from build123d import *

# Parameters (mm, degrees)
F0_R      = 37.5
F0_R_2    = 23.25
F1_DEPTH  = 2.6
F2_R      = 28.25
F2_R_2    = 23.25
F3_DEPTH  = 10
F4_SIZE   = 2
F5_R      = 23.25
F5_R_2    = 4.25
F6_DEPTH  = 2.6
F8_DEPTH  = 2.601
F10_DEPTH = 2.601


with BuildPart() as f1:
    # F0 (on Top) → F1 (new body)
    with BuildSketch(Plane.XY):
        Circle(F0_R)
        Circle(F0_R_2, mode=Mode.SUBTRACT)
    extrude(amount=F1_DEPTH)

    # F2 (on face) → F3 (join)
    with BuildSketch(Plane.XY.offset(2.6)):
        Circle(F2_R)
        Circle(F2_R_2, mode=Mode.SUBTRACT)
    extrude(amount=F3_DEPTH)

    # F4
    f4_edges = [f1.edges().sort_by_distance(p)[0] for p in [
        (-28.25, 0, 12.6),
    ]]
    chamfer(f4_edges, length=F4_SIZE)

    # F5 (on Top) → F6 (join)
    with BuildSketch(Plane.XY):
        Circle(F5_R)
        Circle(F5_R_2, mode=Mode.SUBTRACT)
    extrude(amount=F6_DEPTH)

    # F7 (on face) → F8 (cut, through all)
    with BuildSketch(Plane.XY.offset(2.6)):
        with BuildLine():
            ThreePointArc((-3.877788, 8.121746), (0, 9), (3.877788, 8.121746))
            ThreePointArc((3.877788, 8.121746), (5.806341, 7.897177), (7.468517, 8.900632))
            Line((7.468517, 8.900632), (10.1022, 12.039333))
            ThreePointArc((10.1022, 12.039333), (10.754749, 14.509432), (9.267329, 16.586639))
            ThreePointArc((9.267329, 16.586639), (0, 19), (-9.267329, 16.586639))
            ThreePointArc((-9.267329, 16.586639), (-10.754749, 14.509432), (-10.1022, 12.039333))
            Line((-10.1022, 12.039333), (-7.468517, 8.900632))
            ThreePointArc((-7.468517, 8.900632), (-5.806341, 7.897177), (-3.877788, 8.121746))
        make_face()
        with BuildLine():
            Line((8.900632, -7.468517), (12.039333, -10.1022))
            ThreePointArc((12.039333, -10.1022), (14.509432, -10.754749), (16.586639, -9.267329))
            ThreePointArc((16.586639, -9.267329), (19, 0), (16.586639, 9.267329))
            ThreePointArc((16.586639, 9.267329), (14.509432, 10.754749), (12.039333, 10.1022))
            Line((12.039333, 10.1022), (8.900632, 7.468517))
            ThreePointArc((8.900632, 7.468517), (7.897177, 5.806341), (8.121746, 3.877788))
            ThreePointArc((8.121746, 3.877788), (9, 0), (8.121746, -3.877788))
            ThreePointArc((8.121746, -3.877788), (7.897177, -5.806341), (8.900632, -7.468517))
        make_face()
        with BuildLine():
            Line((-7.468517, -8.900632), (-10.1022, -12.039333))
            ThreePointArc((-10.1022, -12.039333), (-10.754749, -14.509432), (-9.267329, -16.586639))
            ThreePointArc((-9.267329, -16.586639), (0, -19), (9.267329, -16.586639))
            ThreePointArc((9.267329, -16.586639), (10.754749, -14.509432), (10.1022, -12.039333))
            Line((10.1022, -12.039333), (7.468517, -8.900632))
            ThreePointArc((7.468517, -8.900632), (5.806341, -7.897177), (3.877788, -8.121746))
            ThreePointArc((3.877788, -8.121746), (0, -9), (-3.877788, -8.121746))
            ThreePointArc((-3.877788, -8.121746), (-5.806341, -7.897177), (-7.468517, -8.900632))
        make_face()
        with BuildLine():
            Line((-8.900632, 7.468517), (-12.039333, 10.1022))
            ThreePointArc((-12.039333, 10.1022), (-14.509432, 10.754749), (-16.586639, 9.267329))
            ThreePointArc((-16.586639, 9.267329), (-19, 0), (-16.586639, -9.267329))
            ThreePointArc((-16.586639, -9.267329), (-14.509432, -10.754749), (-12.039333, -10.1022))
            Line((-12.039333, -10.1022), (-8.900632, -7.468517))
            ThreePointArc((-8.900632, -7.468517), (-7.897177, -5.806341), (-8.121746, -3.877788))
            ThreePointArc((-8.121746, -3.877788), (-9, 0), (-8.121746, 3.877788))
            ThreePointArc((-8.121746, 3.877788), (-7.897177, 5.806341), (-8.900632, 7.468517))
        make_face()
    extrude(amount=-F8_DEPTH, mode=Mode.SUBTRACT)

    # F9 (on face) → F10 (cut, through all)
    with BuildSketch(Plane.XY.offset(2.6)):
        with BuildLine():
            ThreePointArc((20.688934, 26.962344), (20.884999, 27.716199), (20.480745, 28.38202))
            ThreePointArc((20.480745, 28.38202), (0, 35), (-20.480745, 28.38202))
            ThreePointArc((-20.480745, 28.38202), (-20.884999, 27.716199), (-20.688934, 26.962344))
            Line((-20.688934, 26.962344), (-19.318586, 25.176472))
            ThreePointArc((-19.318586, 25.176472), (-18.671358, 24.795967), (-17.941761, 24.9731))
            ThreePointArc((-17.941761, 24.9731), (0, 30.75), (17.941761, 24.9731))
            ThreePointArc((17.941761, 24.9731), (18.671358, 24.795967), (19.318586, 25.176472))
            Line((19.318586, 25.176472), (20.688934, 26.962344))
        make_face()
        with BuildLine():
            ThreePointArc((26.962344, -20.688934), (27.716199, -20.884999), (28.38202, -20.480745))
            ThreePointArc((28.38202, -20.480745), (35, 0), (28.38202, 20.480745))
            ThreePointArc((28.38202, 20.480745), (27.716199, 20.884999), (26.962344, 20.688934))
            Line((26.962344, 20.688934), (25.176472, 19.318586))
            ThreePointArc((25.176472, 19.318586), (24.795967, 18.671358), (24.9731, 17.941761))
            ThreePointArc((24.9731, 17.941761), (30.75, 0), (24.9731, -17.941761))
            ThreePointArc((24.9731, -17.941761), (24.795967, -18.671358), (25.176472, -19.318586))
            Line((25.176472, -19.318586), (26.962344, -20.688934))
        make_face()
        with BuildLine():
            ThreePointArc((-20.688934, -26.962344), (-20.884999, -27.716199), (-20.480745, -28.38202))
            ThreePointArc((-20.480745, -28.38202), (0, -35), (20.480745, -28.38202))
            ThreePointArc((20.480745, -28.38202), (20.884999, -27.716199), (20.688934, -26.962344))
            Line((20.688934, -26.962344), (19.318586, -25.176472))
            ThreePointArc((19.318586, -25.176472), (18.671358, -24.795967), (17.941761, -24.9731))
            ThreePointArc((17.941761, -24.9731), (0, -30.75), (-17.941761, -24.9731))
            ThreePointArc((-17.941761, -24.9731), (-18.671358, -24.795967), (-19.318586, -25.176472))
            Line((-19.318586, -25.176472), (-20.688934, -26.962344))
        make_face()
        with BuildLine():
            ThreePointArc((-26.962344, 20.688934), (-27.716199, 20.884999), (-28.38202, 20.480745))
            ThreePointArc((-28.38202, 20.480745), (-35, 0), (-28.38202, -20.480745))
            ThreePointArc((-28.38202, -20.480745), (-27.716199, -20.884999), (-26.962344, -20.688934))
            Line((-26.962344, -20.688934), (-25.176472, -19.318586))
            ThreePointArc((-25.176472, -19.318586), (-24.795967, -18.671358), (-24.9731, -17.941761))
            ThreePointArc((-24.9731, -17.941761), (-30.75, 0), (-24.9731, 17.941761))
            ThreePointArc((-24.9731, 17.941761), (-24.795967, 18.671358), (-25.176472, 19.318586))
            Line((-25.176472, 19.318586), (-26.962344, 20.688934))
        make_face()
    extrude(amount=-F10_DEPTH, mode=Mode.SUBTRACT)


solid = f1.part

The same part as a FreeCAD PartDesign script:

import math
import FreeCAD as App
import Part
import Sketcher
Q = App.Units.Quantity


def edges_at(feature, points):
    """Names of the edges that pass closest to the given points."""
    edges = feature.Shape.Edges
    near = lambda p: min(range(len(edges)), key=lambda i: edges[i].distToShape(Part.Vertex(*p))[0])
    return sorted({f"Edge{near(p) + 1}" for p in points})

doc = App.newDocument("Part")
body = doc.addObject("PartDesign::Body", "Body")

# Sketch on XY plane
sketch1 = body.newObject("Sketcher::SketchObject", "Sketch")
sketch1.AttachmentSupport = (doc.getObject("XY_Plane"), [""])
sketch1.MapMode = "FlatFace"
sketch1.addGeometry([
    Part.Circle(App.Vector(0, 0, 0), App.Vector(0, 0, 1), 37.5),
    Part.Circle(App.Vector(0, 0, 0), App.Vector(0, 0, 1), 23.25),
], False)
sketch1.addConstraint([
    Sketcher.Constraint("Coincident", 0, 3, -1, 1),
    Sketcher.Constraint("Coincident", 1, 3, -1, 1),
    Sketcher.Constraint("Diameter", 0, Q("75 mm")),
    Sketcher.Constraint("Diameter", 1, Q("46.5 mm")),
])
pad1 = body.newObject("PartDesign::Pad", "Pad")
pad1.Profile = sketch1
pad1.Length = 2.6

# Sketch on XY plane
sketch2 = body.newObject("Sketcher::SketchObject", "Sketch001")
sketch2.AttachmentSupport = (doc.getObject("XY_Plane"), [""])
sketch2.MapMode = "FlatFace"
sketch2.AttachmentOffset = App.Placement(App.Vector(0, 0, 2.6), App.Rotation())
sketch2.addGeometry([
    Part.Circle(App.Vector(0, 0, 0), App.Vector(0, 0, 1), 28.25),
    Part.Circle(App.Vector(0, 0, 0), App.Vector(0, 0, 1), 23.25),
], False)
sketch2.addConstraint([
    Sketcher.Constraint("Coincident", 0, 3, -1, 1),
    Sketcher.Constraint("Coincident", 1, 3, -1, 1),
    Sketcher.Constraint("Diameter", 0, Q("56.5 mm")),
    Sketcher.Constraint("Diameter", 1, Q("46.5 mm")),
])
pad2 = body.newObject("PartDesign::Pad", "Pad001")
pad2.Profile = sketch2
pad2.Length = 10
doc.recompute()

chamfer = body.newObject("PartDesign::Chamfer", "Chamfer")
chamfer.Base = (pad2, edges_at(pad2, [(-28.25, 0, 12.6)]))
chamfer.Size = 2

# Sketch on XY plane
sketch3 = body.newObject("Sketcher::SketchObject", "Sketch002")
sketch3.AttachmentSupport = (doc.getObject("XY_Plane"), [""])
sketch3.MapMode = "FlatFace"
sketch3.addGeometry([
    Part.Circle(App.Vector(0, 0, 0), App.Vector(0, 0, 1), 23.25),
    Part.Circle(App.Vector(0, 0, 0), App.Vector(0, 0, 1), 4.25),
], False)
sketch3.addConstraint([
    Sketcher.Constraint("Coincident", 0, 3, -1, 1),
    Sketcher.Constraint("Coincident", 1, 3, -1, 1),
    Sketcher.Constraint("Diameter", 0, Q("46.5 mm")),
    Sketcher.Constraint("Diameter", 1, Q("8.5 mm")),
])
pad3 = body.newObject("PartDesign::Pad", "Pad002")
pad3.Profile = sketch3
pad3.Length = 2.6

# Sketch on XY plane
sketch4 = body.newObject("Sketcher::SketchObject", "Sketch003")
sketch4.AttachmentSupport = (doc.getObject("XY_Plane"), [""])
sketch4.MapMode = "FlatFace"
sketch4.AttachmentOffset = App.Placement(App.Vector(0, 0, 2.6), App.Rotation())
sketch4.addGeometry([
    Part.ArcOfCircle(Part.Circle(App.Vector(0, 0.000001, 0), App.Vector(0, 0, 1), 8.999999), math.radians(64.477507), math.radians(115.522493)),  # 0
    Part.ArcOfCircle(Part.Circle(App.Vector(5.170383, 10.828997, 0), App.Vector(0, 0, 1), 3.000001), math.radians(-115.52246), math.radians(-40.000023)),  # 1
    Part.LineSegment(App.Vector(7.468517, 8.900632, 0), App.Vector(10.1022, 12.039333, 0)),  # 2
    Part.ArcOfCircle(Part.Circle(App.Vector(7.804069, 13.967696, 0), App.Vector(0, 0, 1), 2.999999), math.radians(-40.000029), math.radians(60.806957)),  # 3
    Part.ArcOfCircle(Part.Circle(App.Vector(0, 0.000004, 0), App.Vector(0, 0, 1), 18.999996), math.radians(60.806918), math.radians(119.193082)),  # 4
    Part.ArcOfCircle(Part.Circle(App.Vector(-7.804069, 13.967696, 0), App.Vector(0, 0, 1), 2.999999), math.radians(119.193043), math.radians(220.000029)),  # 5
    Part.LineSegment(App.Vector(-10.1022, 12.039333, 0), App.Vector(-7.468517, 8.900632, 0)),  # 6
    Part.ArcOfCircle(Part.Circle(App.Vector(-5.170383, 10.828997, 0), App.Vector(0, 0, 1), 3.000001), math.radians(-139.999977), math.radians(-64.47754)),  # 7
    Part.LineSegment(App.Vector(8.900632, -7.468517, 0), App.Vector(12.039333, -10.1022, 0)),  # 8
    Part.ArcOfCircle(Part.Circle(App.Vector(13.967696, -7.804069, 0), App.Vector(0, 0, 1), 2.999999), math.radians(-130.000029), math.radians(-29.193043)),  # 9
    Part.ArcOfCircle(Part.Circle(App.Vector(0.000004, 0, 0), App.Vector(0, 0, 1), 18.999996), math.radians(-29.193082), math.radians(29.193082)),  # 10
    Part.ArcOfCircle(Part.Circle(App.Vector(13.967696, 7.804069, 0), App.Vector(0, 0, 1), 2.999999), math.radians(29.193043), math.radians(130.000029)),  # 11
    Part.LineSegment(App.Vector(12.039333, 10.1022, 0), App.Vector(8.900632, 7.468517, 0)),  # 12
    Part.ArcOfCircle(Part.Circle(App.Vector(10.828997, 5.170383, 0), App.Vector(0, 0, 1), 3.000001), math.radians(130.000023), math.radians(205.52246)),  # 13
    Part.ArcOfCircle(Part.Circle(App.Vector(0.000001, 0, 0), App.Vector(0, 0, 1), 8.999999), math.radians(-25.522493), math.radians(25.522493)),  # 14
    Part.ArcOfCircle(Part.Circle(App.Vector(10.828997, -5.170383, 0), App.Vector(0, 0, 1), 3.000001), math.radians(154.47754), math.radians(229.999977)),  # 15
    Part.LineSegment(App.Vector(-7.468517, -8.900632, 0), App.Vector(-10.1022, -12.039333, 0)),  # 16
    Part.ArcOfCircle(Part.Circle(App.Vector(-7.804069, -13.967696, 0), App.Vector(0, 0, 1), 2.999999), math.radians(139.999971), math.radians(240.806957)),  # 17
    Part.ArcOfCircle(Part.Circle(App.Vector(0, -0.000004, 0), App.Vector(0, 0, 1), 18.999996), math.radians(-119.193082), math.radians(-60.806918)),  # 18
    Part.ArcOfCircle(Part.Circle(App.Vector(7.804069, -13.967696, 0), App.Vector(0, 0, 1), 2.999999), math.radians(-60.806957), math.radians(40.000029)),  # 19
    Part.LineSegment(App.Vector(10.1022, -12.039333, 0), App.Vector(7.468517, -8.900632, 0)),  # 20
    Part.ArcOfCircle(Part.Circle(App.Vector(5.170383, -10.828997, 0), App.Vector(0, 0, 1), 3.000001), math.radians(40.000023), math.radians(115.52246)),  # 21
    Part.ArcOfCircle(Part.Circle(App.Vector(0, -0.000001, 0), App.Vector(0, 0, 1), 8.999999), math.radians(-115.522493), math.radians(-64.477507)),  # 22
    Part.ArcOfCircle(Part.Circle(App.Vector(-5.170383, -10.828997, 0), App.Vector(0, 0, 1), 3.000001), math.radians(64.47754), math.radians(139.999977)),  # 23
    Part.LineSegment(App.Vector(-8.900632, 7.468517, 0), App.Vector(-12.039333, 10.1022, 0)),  # 24
    Part.ArcOfCircle(Part.Circle(App.Vector(-13.967696, 7.804069, 0), App.Vector(0, 0, 1), 2.999999), math.radians(49.999971), math.radians(150.806957)),  # 25
    Part.ArcOfCircle(Part.Circle(App.Vector(-0.000004, 0, 0), App.Vector(0, 0, 1), 18.999996), math.radians(150.806918), math.radians(209.193082)),  # 26
    Part.ArcOfCircle(Part.Circle(App.Vector(-13.967696, -7.804069, 0), App.Vector(0, 0, 1), 2.999999), math.radians(-150.806957), math.radians(-49.999971)),  # 27
    Part.LineSegment(App.Vector(-12.039333, -10.1022, 0), App.Vector(-8.900632, -7.468517, 0)),  # 28
    Part.ArcOfCircle(Part.Circle(App.Vector(-10.828997, -5.170383, 0), App.Vector(0, 0, 1), 3.000001), math.radians(-49.999977), math.radians(25.52246)),  # 29
    Part.ArcOfCircle(Part.Circle(App.Vector(-0.000001, 0, 0), App.Vector(0, 0, 1), 8.999999), math.radians(154.477507), math.radians(205.522493)),  # 30
    Part.ArcOfCircle(Part.Circle(App.Vector(-10.828997, 5.170383, 0), App.Vector(0, 0, 1), 3.000001), math.radians(-25.52246), math.radians(49.999977)),  # 31
], False)
sketch4.addConstraint([
    Sketcher.Constraint("Tangent", 0, 1, 1, 1),
    Sketcher.Constraint("Tangent", 1, 2, 2, 1),
    Sketcher.Constraint("Tangent", 2, 2, 3, 1),
    Sketcher.Constraint("Tangent", 3, 2, 4, 1),
    Sketcher.Constraint("Tangent", 4, 2, 5, 1),
    Sketcher.Constraint("Tangent", 5, 2, 6, 1),
    Sketcher.Constraint("Tangent", 6, 2, 7, 1),
    Sketcher.Constraint("Tangent", 7, 2, 0, 2),
    Sketcher.Constraint("Tangent", 8, 2, 9, 1),
    Sketcher.Constraint("Tangent", 9, 2, 10, 1),
    Sketcher.Constraint("Tangent", 10, 2, 11, 1),
    Sketcher.Constraint("Tangent", 11, 2, 12, 1),
    Sketcher.Constraint("Tangent", 12, 2, 13, 1),
    Sketcher.Constraint("Tangent", 13, 2, 14, 2),
    Sketcher.Constraint("Tangent", 14, 1, 15, 1),
    Sketcher.Constraint("Tangent", 15, 2, 8, 1),
    Sketcher.Constraint("Tangent", 16, 2, 17, 1),
    Sketcher.Constraint("Tangent", 17, 2, 18, 1),
    Sketcher.Constraint("Tangent", 18, 2, 19, 1),
    Sketcher.Constraint("Tangent", 19, 2, 20, 1),
    Sketcher.Constraint("Tangent", 20, 2, 21, 1),
    Sketcher.Constraint("Tangent", 21, 2, 22, 2),
    Sketcher.Constraint("Tangent", 22, 1, 23, 1),
    Sketcher.Constraint("Tangent", 23, 2, 16, 1),
    Sketcher.Constraint("Tangent", 24, 2, 25, 1),
    Sketcher.Constraint("Tangent", 25, 2, 26, 1),
    Sketcher.Constraint("Tangent", 26, 2, 27, 1),
    Sketcher.Constraint("Tangent", 27, 2, 28, 1),
    Sketcher.Constraint("Tangent", 28, 2, 29, 1),
    Sketcher.Constraint("Tangent", 29, 2, 30, 2),
    Sketcher.Constraint("Tangent", 30, 1, 31, 1),
    Sketcher.Constraint("Tangent", 31, 2, 24, 1),
    Sketcher.Constraint("Coincident", 0, 3, -1, 1),
    Sketcher.Constraint("Coincident", 4, 3, -1, 1),
    Sketcher.Constraint("Coincident", 10, 3, -1, 1),
    Sketcher.Constraint("Coincident", 14, 3, -1, 1),
    Sketcher.Constraint("Coincident", 18, 3, -1, 1),
    Sketcher.Constraint("Coincident", 22, 3, -1, 1),
    Sketcher.Constraint("Coincident", 26, 3, -1, 1),
    Sketcher.Constraint("Coincident", 30, 3, -1, 1),
    Sketcher.Constraint("Equal", 3, 5),
    Sketcher.Constraint("Equal", 1, 7),
    Sketcher.Constraint("Equal", 5, 9),
    Sketcher.Constraint("Equal", 4, 10),
    Sketcher.Constraint("Equal", 9, 11),
    Sketcher.Constraint("Equal", 7, 13),
    Sketcher.Constraint("Equal", 0, 14),
    Sketcher.Constraint("Equal", 13, 15),
    Sketcher.Constraint("Equal", 11, 17),
    Sketcher.Constraint("Equal", 10, 18),
    Sketcher.Constraint("Equal", 17, 19),
    Sketcher.Constraint("Equal", 15, 21),
    Sketcher.Constraint("Equal", 14, 22),
    Sketcher.Constraint("Equal", 21, 23),
    Sketcher.Constraint("Equal", 19, 25),
    Sketcher.Constraint("Equal", 18, 26),
    Sketcher.Constraint("Equal", 25, 27),
    Sketcher.Constraint("Equal", 23, 29),
    Sketcher.Constraint("Equal", 22, 30),
    Sketcher.Constraint("Equal", 29, 31),
    Sketcher.Constraint("Symmetric", 2, 2, 16, 2, -1, 1),
    Sketcher.Constraint("Symmetric", 5, 2, 19, 2, -1, 1),
    Sketcher.Constraint("Symmetric", 8, 2, 24, 2, -1, 1),
    Sketcher.Constraint("Symmetric", 11, 2, 27, 2, -1, 1),
    Sketcher.Constraint("Symmetric", 2, 2, 5, 2, -2),
    Sketcher.Constraint("Symmetric", 11, 2, 24, 2, -2),
    Sketcher.Constraint("Perpendicular", 2, 8),
    Sketcher.Constraint("Equal", 6, 8),
    Sketcher.Constraint("Radius", 0, Q("8.999999 mm")),
    Sketcher.Constraint("Radius", 1, Q("3.000001 mm")),
    Sketcher.Constraint("Radius", 3, Q("2.999999 mm")),
    Sketcher.Constraint("Angle", 2, Q("49.999998 deg")),
    Sketcher.Constraint("Radius", 4, Q("18.999996 mm")),
    Sketcher.Constraint("DistanceX", -1, 1, 2, 2, Q("10.1022 mm")),
])
pocket1 = body.newObject("PartDesign::Pocket", "Pocket")
pocket1.Profile = sketch4
pocket1.Type = "ThroughAll"

# Sketch on XY plane
sketch5 = body.newObject("Sketcher::SketchObject", "Sketch004")
sketch5.AttachmentSupport = (doc.getObject("XY_Plane"), [""])
sketch5.MapMode = "FlatFace"
sketch5.AttachmentOffset = App.Placement(App.Vector(0, 0, 2.6), App.Rotation())
sketch5.addGeometry([
    Part.ArcOfCircle(Part.Circle(App.Vector(19.895582, 27.571106, 0), App.Vector(0, 0, 1), 0.999999), math.radians(-37.500059), math.radians(54.18546)),  # 0
    Part.ArcOfCircle(Part.Circle(App.Vector(0, 0.000002, 0), App.Vector(0, 0, 1), 34.999998), math.radians(54.185411), math.radians(125.814589)),  # 1
    Part.ArcOfCircle(Part.Circle(App.Vector(-19.895582, 27.571106, 0), App.Vector(0, 0, 1), 0.999999), math.radians(125.81454), math.radians(217.500059)),  # 2
    Part.LineSegment(App.Vector(-20.688934, 26.962344, 0), App.Vector(-19.318586, 25.176472, 0)),  # 3
    Part.ArcOfCircle(Part.Circle(App.Vector(-18.525233, 25.785232, 0), App.Vector(0, 0, 1), 0.999999), math.radians(-142.500051), math.radians(-54.304851)),  # 4
    Part.ArcOfCircle(Part.Circle(App.Vector(0, -0.000001, 0), App.Vector(0, 0, 1), 30.750001), math.radians(54.304891), math.radians(125.695109)),  # 5
    Part.ArcOfCircle(Part.Circle(App.Vector(18.525233, 25.785232, 0), App.Vector(0, 0, 1), 0.999999), math.radians(-125.695149), math.radians(-37.499949)),  # 6
    Part.LineSegment(App.Vector(19.318586, 25.176472, 0), App.Vector(20.688934, 26.962344, 0)),  # 7
    Part.ArcOfCircle(Part.Circle(App.Vector(27.571106, -19.895582, 0), App.Vector(0, 0, 1), 0.999999), math.radians(-127.500059), math.radians(-35.81454)),  # 8
    Part.ArcOfCircle(Part.Circle(App.Vector(0.000002, 0, 0), App.Vector(0, 0, 1), 34.999998), math.radians(-35.814589), math.radians(35.814589)),  # 9
    Part.ArcOfCircle(Part.Circle(App.Vector(27.571106, 19.895582, 0), App.Vector(0, 0, 1), 0.999999), math.radians(35.81454), math.radians(127.500059)),  # 10
    Part.LineSegment(App.Vector(26.962344, 20.688934, 0), App.Vector(25.176472, 19.318586, 0)),  # 11
    Part.ArcOfCircle(Part.Circle(App.Vector(25.785232, 18.525233, 0), App.Vector(0, 0, 1), 0.999999), math.radians(127.499949), math.radians(215.695149)),  # 12
    Part.ArcOfCircle(Part.Circle(App.Vector(-0.000001, 0, 0), App.Vector(0, 0, 1), 30.750001), math.radians(-35.695109), math.radians(35.695109)),  # 13
    Part.ArcOfCircle(Part.Circle(App.Vector(25.785232, -18.525233, 0), App.Vector(0, 0, 1), 0.999999), math.radians(144.304851), math.radians(232.500051)),  # 14
    Part.LineSegment(App.Vector(25.176472, -19.318586, 0), App.Vector(26.962344, -20.688934, 0)),  # 15
    Part.ArcOfCircle(Part.Circle(App.Vector(-19.895582, -27.571106, 0), App.Vector(0, 0, 1), 0.999999), math.radians(142.499941), math.radians(234.18546)),  # 16
    Part.ArcOfCircle(Part.Circle(App.Vector(0, -0.000002, 0), App.Vector(0, 0, 1), 34.999998), math.radians(-125.814589), math.radians(-54.185411)),  # 17
    Part.ArcOfCircle(Part.Circle(App.Vector(19.895582, -27.571106, 0), App.Vector(0, 0, 1), 0.999999), math.radians(-54.18546), math.radians(37.500059)),  # 18
    Part.LineSegment(App.Vector(20.688934, -26.962344, 0), App.Vector(19.318586, -25.176472, 0)),  # 19
    Part.ArcOfCircle(Part.Circle(App.Vector(18.525233, -25.785232, 0), App.Vector(0, 0, 1), 0.999999), math.radians(37.499949), math.radians(125.695149)),  # 20
    Part.ArcOfCircle(Part.Circle(App.Vector(0, 0.000001, 0), App.Vector(0, 0, 1), 30.750001), math.radians(-125.695109), math.radians(-54.304891)),  # 21
    Part.ArcOfCircle(Part.Circle(App.Vector(-18.525233, -25.785232, 0), App.Vector(0, 0, 1), 0.999999), math.radians(54.304851), math.radians(142.500051)),  # 22
    Part.LineSegment(App.Vector(-19.318586, -25.176472, 0), App.Vector(-20.688934, -26.962344, 0)),  # 23
    Part.ArcOfCircle(Part.Circle(App.Vector(-27.571106, 19.895582, 0), App.Vector(0, 0, 1), 0.999999), math.radians(52.499941), math.radians(144.18546)),  # 24
    Part.ArcOfCircle(Part.Circle(App.Vector(-0.000002, 0, 0), App.Vector(0, 0, 1), 34.999998), math.radians(144.185411), math.radians(215.814589)),  # 25
    Part.ArcOfCircle(Part.Circle(App.Vector(-27.571106, -19.895582, 0), App.Vector(0, 0, 1), 0.999999), math.radians(-144.18546), math.radians(-52.499941)),  # 26
    Part.LineSegment(App.Vector(-26.962344, -20.688934, 0), App.Vector(-25.176472, -19.318586, 0)),  # 27
    Part.ArcOfCircle(Part.Circle(App.Vector(-25.785232, -18.525233, 0), App.Vector(0, 0, 1), 0.999999), math.radians(-52.500051), math.radians(35.695149)),  # 28
    Part.ArcOfCircle(Part.Circle(App.Vector(0.000001, 0, 0), App.Vector(0, 0, 1), 30.750001), math.radians(144.304891), math.radians(215.695109)),  # 29
    Part.ArcOfCircle(Part.Circle(App.Vector(-25.785232, 18.525233, 0), App.Vector(0, 0, 1), 0.999999), math.radians(-35.695149), math.radians(52.500051)),  # 30
    Part.LineSegment(App.Vector(-25.176472, 19.318586, 0), App.Vector(-26.962344, 20.688934, 0)),  # 31
], False)
sketch5.addConstraint([
    Sketcher.Constraint("Tangent", 0, 2, 1, 1),
    Sketcher.Constraint("Tangent", 1, 2, 2, 1),
    Sketcher.Constraint("Tangent", 2, 2, 3, 1),
    Sketcher.Constraint("Tangent", 3, 2, 4, 1),
    Sketcher.Constraint("Tangent", 4, 2, 5, 2),
    Sketcher.Constraint("Tangent", 5, 1, 6, 1),
    Sketcher.Constraint("Tangent", 6, 2, 7, 1),
    Sketcher.Constraint("Tangent", 7, 2, 0, 1),
    Sketcher.Constraint("Tangent", 8, 2, 9, 1),
    Sketcher.Constraint("Tangent", 9, 2, 10, 1),
    Sketcher.Constraint("Tangent", 10, 2, 11, 1),
    Sketcher.Constraint("Tangent", 11, 2, 12, 1),
    Sketcher.Constraint("Tangent", 12, 2, 13, 2),
    Sketcher.Constraint("Tangent", 13, 1, 14, 1),
    Sketcher.Constraint("Tangent", 14, 2, 15, 1),
    Sketcher.Constraint("Tangent", 15, 2, 8, 1),
    Sketcher.Constraint("Tangent", 16, 2, 17, 1),
    Sketcher.Constraint("Tangent", 17, 2, 18, 1),
    Sketcher.Constraint("Tangent", 18, 2, 19, 1),
    Sketcher.Constraint("Tangent", 19, 2, 20, 1),
    Sketcher.Constraint("Tangent", 20, 2, 21, 2),
    Sketcher.Constraint("Tangent", 21, 1, 22, 1),
    Sketcher.Constraint("Tangent", 22, 2, 23, 1),
    Sketcher.Constraint("Tangent", 23, 2, 16, 1),
    Sketcher.Constraint("Tangent", 24, 2, 25, 1),
    Sketcher.Constraint("Tangent", 25, 2, 26, 1),
    Sketcher.Constraint("Tangent", 26, 2, 27, 1),
    Sketcher.Constraint("Tangent", 27, 2, 28, 1),
    Sketcher.Constraint("Tangent", 28, 2, 29, 2),
    Sketcher.Constraint("Tangent", 29, 1, 30, 1),
    Sketcher.Constraint("Tangent", 30, 2, 31, 1),
    Sketcher.Constraint("Tangent", 31, 2, 24, 1),
    Sketcher.Constraint("Coincident", 1, 3, -1, 1),
    Sketcher.Constraint("Coincident", 5, 3, -1, 1),
    Sketcher.Constraint("Coincident", 9, 3, -1, 1),
    Sketcher.Constraint("Coincident", 13, 3, -1, 1),
    Sketcher.Constraint("Coincident", 17, 3, -1, 1),
    Sketcher.Constraint("Coincident", 21, 3, -1, 1),
    Sketcher.Constraint("Coincident", 25, 3, -1, 1),
    Sketcher.Constraint("Coincident", 29, 3, -1, 1),
    Sketcher.Constraint("Equal", 0, 2),
    Sketcher.Constraint("Equal", 2, 4),
    Sketcher.Constraint("Equal", 4, 6),
    Sketcher.Constraint("Equal", 6, 8),
    Sketcher.Constraint("Equal", 1, 9),
    Sketcher.Constraint("Equal", 8, 10),
    Sketcher.Constraint("Equal", 10, 12),
    Sketcher.Constraint("Equal", 5, 13),
    Sketcher.Constraint("Equal", 12, 14),
    Sketcher.Constraint("Equal", 14, 16),
    Sketcher.Constraint("Equal", 9, 17),
    Sketcher.Constraint("Equal", 16, 18),
    Sketcher.Constraint("Equal", 18, 20),
    Sketcher.Constraint("Equal", 13, 21),
    Sketcher.Constraint("Equal", 20, 22),
    Sketcher.Constraint("Equal", 22, 24),
    Sketcher.Constraint("Equal", 17, 25),
    Sketcher.Constraint("Equal", 24, 26),
    Sketcher.Constraint("Equal", 26, 28),
    Sketcher.Constraint("Equal", 21, 29),
    Sketcher.Constraint("Equal", 28, 30),
    Sketcher.Constraint("Symmetric", 2, 2, 18, 2, -1, 1),
    Sketcher.Constraint("Symmetric", 6, 2, 22, 2, -1, 1),
    Sketcher.Constraint("Symmetric", 10, 2, 26, 2, -1, 1),
    Sketcher.Constraint("Symmetric", 14, 2, 30, 2, -1, 1),
    Sketcher.Constraint("Symmetric", 3, 2, 6, 2, -2),
    Sketcher.Constraint("Symmetric", 15, 2, 26, 2, -2),
    Sketcher.Constraint("Perpendicular", 3, 11),
    Sketcher.Constraint("Radius", 0, Q("0.999999 mm")),
    Sketcher.Constraint("Radius", 1, Q("34.999998 mm")),
    Sketcher.Constraint("Radius", 5, Q("30.750001 mm")),
    Sketcher.Constraint("Angle", 3, Q("-52.499996 deg")),
    Sketcher.Constraint("DistanceX", 6, 3, 12, 3, Q("7.259999 mm")),
    Sketcher.Constraint("DistanceY", 12, 3, 6, 3, Q("7.259999 mm")),
])
pocket2 = body.newObject("PartDesign::Pocket", "Pocket001")
pocket2.Profile = sketch5
pocket2.Type = "ThroughAll"

doc.recompute()
